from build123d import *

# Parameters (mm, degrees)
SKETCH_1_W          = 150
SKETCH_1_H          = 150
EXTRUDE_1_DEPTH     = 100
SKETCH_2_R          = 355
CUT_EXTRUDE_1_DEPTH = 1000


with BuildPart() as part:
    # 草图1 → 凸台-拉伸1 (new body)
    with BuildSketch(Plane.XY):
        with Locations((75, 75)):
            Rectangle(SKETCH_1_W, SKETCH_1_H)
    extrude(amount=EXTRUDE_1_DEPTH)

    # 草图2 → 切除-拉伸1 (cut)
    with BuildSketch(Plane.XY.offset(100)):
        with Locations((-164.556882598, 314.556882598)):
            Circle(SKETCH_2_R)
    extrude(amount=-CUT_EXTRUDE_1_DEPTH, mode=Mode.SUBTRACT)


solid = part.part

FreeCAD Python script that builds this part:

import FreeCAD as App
import Part
import Sketcher
from FreeCAD import Vector


def add_polygon(sketch, points):
    """Adds a closed chain of lines whose ends are joined by coincident constraints."""
    first, n = sketch.GeometryCount, len(points)
    for a, b in zip(points, points[1:] + points[:1]):
        sketch.addGeometry(Part.LineSegment(App.Vector(*a, 0), App.Vector(*b, 0)), False)
    for i in range(n):
        sketch.addConstraint(Sketcher.Constraint("Coincident", first + i, 2, first + (i + 1) % n, 1))

doc = App.newDocument("Part")
body = doc.addObject("PartDesign::Body", "Body")

# Sketch on XY plane
sketch1 = body.newObject("Sketcher::SketchObject", "Sketch")
sketch1.AttachmentSupport = (doc.getObject("XY_Plane"), [""])
sketch1.MapMode = "FlatFace"
add_polygon(sketch1, [(0, 150), (0, 0), (150, 0), (150, 150)])  # lines 0-3
sketch1.addConstraint([
    Sketcher.Constraint("Vertical", 0),
    Sketcher.Constraint("Horizontal", 1),
    Sketcher.Constraint("Vertical", 2),
    Sketcher.Constraint("Horizontal", 3),
    Sketcher.Constraint("Coincident", 0, 2, -1, 1),
    Sketcher.Constraint("Equal", 3, 0),
    Sketcher.Constraint("DistanceX", 1, 1, 1, 2, 150.0),
])
pad1 = body.newObject("PartDesign::Pad", "Pad")
pad1.Profile = sketch1
pad1.Length = 100

# Sketch on XY plane
sketch2 = body.newObject("Sketcher::SketchObject", "Sketch001")
sketch2.AttachmentSupport = (doc.getObject("XY_Plane"), [""])
sketch2.MapMode = "FlatFace"
sketch2.AttachmentOffset = App.Placement(Vector(0, 0, 100), App.Rotation())
sketch2.addGeometry(Part.Circle(Vector(-164.556883, 314.556883, 0), Vector(0, 0, 1), 355), False)
sketch2.addConstraint([
    Sketcher.Constraint("Diameter", 0, 710.0),
    Sketcher.Constraint("DistanceX", 0, 3, -1, 1, 164.556883),
    Sketcher.Constraint("DistanceY", -1, 1, 0, 3, 314.556883),
])
pocket1 = body.newObject("PartDesign::Pocket", "Pocket")
pocket1.Profile = sketch2
pocket1.Length = 1000

doc.recompute()
